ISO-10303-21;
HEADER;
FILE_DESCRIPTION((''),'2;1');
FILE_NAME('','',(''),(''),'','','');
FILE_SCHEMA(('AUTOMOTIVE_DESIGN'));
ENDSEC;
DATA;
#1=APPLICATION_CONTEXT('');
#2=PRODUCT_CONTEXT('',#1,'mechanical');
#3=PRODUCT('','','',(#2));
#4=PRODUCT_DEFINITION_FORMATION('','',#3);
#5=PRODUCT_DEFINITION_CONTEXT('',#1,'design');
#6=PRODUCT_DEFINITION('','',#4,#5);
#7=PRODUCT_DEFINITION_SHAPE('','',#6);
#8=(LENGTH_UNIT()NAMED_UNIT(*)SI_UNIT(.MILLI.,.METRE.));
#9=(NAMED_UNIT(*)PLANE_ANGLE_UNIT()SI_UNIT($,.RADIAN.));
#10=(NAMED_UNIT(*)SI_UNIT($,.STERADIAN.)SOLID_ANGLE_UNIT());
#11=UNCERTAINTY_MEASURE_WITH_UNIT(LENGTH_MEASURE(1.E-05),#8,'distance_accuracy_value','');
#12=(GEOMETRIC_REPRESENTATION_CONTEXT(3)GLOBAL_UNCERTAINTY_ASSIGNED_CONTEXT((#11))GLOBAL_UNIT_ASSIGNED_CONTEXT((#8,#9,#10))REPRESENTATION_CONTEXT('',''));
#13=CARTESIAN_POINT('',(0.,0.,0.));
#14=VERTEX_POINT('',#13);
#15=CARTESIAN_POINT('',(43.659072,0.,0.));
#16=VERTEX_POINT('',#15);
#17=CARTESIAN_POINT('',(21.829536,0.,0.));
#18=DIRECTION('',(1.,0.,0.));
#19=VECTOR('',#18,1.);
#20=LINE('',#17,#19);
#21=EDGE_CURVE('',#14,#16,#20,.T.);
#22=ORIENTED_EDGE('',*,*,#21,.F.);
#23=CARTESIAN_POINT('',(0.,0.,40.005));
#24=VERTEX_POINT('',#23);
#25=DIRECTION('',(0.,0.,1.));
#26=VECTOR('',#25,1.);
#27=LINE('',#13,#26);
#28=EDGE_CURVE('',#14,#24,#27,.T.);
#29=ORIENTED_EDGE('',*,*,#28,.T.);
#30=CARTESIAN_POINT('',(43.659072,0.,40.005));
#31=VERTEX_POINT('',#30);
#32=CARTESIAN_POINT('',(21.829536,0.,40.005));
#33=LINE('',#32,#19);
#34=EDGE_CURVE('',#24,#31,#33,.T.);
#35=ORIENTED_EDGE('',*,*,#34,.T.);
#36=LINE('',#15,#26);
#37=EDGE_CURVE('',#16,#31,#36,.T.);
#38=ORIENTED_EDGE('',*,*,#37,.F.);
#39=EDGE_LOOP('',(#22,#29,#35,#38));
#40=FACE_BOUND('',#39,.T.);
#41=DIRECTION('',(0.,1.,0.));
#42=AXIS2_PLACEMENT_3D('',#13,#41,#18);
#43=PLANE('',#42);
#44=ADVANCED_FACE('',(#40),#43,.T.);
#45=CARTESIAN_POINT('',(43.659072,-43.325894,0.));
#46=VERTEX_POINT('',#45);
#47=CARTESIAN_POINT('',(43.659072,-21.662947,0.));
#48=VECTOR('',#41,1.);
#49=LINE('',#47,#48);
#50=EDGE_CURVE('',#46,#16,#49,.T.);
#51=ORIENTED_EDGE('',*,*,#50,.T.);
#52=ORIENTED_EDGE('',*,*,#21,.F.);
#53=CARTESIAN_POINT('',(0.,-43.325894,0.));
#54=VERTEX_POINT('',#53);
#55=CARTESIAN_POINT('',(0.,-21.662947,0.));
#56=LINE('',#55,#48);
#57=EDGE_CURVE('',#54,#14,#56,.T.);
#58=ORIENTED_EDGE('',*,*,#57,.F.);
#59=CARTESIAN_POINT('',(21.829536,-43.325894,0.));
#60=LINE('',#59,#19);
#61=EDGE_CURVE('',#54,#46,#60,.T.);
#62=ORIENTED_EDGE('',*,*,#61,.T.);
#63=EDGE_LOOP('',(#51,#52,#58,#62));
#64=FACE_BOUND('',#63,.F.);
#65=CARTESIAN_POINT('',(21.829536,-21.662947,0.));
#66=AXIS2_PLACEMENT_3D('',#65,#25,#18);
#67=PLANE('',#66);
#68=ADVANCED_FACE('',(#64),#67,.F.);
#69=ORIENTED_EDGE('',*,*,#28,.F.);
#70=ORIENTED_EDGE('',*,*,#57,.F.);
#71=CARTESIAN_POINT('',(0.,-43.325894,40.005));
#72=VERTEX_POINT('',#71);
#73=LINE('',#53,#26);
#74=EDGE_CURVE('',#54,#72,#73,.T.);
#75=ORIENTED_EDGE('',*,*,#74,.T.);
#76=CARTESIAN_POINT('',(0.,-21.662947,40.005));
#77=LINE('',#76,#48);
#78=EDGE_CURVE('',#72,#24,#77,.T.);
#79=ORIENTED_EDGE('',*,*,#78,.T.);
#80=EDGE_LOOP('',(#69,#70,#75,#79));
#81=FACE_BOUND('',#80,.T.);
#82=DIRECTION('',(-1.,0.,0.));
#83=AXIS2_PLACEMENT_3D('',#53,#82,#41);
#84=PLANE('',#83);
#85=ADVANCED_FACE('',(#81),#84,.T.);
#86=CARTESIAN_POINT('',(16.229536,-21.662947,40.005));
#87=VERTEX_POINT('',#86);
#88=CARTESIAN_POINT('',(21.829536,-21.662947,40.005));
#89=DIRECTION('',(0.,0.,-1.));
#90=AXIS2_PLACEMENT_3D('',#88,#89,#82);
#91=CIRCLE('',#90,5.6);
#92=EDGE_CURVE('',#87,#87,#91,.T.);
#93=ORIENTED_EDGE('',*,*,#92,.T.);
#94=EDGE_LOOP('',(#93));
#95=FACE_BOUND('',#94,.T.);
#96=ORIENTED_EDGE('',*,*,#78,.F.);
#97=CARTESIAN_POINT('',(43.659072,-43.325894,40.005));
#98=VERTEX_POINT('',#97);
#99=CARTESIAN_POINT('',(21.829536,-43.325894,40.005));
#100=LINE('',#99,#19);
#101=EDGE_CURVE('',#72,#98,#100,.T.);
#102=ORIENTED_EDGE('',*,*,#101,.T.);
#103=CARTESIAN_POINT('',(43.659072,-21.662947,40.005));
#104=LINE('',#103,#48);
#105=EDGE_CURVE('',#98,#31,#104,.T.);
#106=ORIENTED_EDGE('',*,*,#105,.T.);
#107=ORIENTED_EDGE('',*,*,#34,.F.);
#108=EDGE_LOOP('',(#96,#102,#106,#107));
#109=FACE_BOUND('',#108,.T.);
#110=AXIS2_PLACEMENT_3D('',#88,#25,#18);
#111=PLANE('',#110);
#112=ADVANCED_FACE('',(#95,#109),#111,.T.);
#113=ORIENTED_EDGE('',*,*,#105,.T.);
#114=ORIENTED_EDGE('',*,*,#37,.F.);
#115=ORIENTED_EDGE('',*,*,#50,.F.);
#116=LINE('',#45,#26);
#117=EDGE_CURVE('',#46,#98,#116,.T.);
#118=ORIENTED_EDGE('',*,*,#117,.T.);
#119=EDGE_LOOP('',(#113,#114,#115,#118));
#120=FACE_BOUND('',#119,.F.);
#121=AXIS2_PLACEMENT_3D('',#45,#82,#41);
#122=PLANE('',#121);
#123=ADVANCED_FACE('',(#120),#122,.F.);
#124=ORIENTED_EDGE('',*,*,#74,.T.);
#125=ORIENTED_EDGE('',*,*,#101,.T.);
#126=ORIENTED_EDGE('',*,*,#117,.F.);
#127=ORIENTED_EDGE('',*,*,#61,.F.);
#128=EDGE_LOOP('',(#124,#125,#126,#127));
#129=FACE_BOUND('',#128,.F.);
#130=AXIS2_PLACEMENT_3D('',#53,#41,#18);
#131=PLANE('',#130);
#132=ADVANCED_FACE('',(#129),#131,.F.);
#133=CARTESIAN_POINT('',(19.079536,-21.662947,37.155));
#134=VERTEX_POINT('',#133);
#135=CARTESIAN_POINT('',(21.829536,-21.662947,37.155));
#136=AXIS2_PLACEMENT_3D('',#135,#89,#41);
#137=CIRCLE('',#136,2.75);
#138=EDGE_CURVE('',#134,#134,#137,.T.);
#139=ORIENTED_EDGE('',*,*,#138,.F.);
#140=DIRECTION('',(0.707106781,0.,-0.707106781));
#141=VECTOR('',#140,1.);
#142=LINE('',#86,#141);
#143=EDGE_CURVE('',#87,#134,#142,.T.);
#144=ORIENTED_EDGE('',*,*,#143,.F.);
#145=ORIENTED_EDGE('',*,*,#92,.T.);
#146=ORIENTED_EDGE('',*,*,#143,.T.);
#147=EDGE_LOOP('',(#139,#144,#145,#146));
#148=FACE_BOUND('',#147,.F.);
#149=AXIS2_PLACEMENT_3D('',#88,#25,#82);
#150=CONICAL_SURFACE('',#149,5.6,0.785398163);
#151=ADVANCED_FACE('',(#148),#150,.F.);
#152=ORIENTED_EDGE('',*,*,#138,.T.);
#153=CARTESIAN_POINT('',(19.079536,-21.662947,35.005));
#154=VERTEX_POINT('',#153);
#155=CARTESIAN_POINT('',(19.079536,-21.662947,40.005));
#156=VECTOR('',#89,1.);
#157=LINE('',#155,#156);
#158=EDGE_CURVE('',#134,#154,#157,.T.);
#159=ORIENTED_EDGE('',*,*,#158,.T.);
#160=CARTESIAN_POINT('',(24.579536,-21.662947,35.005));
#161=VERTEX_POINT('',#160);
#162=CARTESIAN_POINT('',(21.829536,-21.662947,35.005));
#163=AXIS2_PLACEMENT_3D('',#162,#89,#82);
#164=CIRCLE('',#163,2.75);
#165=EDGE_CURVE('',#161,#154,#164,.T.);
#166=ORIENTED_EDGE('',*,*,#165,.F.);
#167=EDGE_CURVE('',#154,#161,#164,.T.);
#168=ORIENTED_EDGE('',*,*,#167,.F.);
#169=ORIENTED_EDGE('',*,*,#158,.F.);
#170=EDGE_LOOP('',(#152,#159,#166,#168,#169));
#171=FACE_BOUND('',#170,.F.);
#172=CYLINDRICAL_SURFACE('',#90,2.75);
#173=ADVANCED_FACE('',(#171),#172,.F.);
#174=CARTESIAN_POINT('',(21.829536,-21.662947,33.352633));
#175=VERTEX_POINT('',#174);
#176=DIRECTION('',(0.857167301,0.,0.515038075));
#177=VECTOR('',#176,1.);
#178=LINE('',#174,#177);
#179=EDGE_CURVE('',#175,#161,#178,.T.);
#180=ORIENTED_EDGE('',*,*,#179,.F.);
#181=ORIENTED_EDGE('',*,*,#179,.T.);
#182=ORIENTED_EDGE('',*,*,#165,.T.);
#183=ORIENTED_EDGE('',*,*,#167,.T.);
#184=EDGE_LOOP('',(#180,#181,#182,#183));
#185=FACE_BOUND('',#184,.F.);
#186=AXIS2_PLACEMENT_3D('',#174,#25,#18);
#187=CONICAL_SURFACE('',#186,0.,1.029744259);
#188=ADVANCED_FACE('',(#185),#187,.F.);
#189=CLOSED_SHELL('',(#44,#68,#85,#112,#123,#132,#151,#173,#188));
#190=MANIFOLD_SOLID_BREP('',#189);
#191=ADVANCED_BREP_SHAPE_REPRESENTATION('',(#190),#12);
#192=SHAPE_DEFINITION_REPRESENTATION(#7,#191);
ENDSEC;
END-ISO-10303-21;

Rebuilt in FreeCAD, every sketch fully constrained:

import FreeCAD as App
import Part
import Sketcher
from FreeCAD import Vector


def add_polygon(sketch, points):
    """Adds a closed chain of lines whose ends are joined by coincident constraints."""
    first, n = sketch.GeometryCount, len(points)
    for a, b in zip(points, points[1:] + points[:1]):
        sketch.addGeometry(Part.LineSegment(App.Vector(*a, 0), App.Vector(*b, 0)), False)
    for i in range(n):
        sketch.addConstraint(Sketcher.Constraint("Coincident", first + i, 2, first + (i + 1) % n, 1))

doc = App.newDocument("Part")
body = doc.addObject("PartDesign::Body", "Body")

# Sketch on XY plane
sketch1 = body.newObject("Sketcher::SketchObject", "Sketch")
sketch1.AttachmentSupport = (doc.getObject("XY_Plane"), [""])
sketch1.MapMode = "FlatFace"
add_polygon(sketch1, [(0, 0), (0, -43), (44, -43), (44, 0)])  # lines 0-3
sketch1.addConstraint([
    Sketcher.Constraint("Vertical", 0),
    Sketcher.Constraint("Horizontal", 1),
    Sketcher.Constraint("Vertical", 2),
    Sketcher.Constraint("Horizontal", 3),
    Sketcher.Constraint("Coincident", 3, 2, -1, 1),
    Sketcher.Constraint("DistanceX", 1, 1, 1, 2, 43.659072),
    Sketcher.Constraint("DistanceY", 0, 2, 0, 1, 43.325894),
])
pad1 = body.newObject("PartDesign::Pad", "Pad")
pad1.Profile = sketch1
pad1.Length = 40.005

# Sketch on XY plane
sketch2 = body.newObject("Sketcher::SketchObject", "Sketch001")
sketch2.AttachmentSupport = (doc.getObject("XY_Plane"), [""])
sketch2.MapMode = "FlatFace"
sketch2.AttachmentOffset = App.Placement(Vector(0, 0, 40.005), App.Rotation())
sketch2.addGeometry(Part.Circle(Vector(21.8, -21.7, 0), Vector(0, 0, 1), 2.8), False)
sketch2.addConstraint([
    Sketcher.Constraint("Diameter", 0, 5.5),
    Sketcher.Constraint("DistanceX", -1, 1, 0, 3, 21.829536),
    Sketcher.Constraint("DistanceY", 0, 3, -1, 1, 21.662947),
])
doc.recompute()
hole = body.newObject("PartDesign::Hole", "Hole")
hole.Profile = sketch2
hole.ThreadType = "None"
hole.Diameter = 5.5
hole.DepthType = "Dimension"
hole.Depth = 5
hole.DrillPoint = "Angled"
hole.DrillPointAngle = 118
hole.HoleCutType = "Countersink"
hole.HoleCutDiameter = 11.2
hole.HoleCutCountersinkAngle = 90

doc.recompute()
